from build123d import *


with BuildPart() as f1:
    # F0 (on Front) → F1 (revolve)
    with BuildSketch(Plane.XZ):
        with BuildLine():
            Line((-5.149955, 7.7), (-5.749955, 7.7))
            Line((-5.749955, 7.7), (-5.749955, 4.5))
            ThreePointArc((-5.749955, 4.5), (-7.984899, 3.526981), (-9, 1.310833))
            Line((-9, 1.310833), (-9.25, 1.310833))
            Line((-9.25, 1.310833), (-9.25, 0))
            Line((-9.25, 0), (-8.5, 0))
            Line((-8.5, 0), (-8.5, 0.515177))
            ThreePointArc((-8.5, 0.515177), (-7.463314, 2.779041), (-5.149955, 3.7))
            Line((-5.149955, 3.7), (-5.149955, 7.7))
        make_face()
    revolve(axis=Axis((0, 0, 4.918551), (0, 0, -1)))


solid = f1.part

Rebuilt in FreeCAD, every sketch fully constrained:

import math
import FreeCAD as App
import Part
import Sketcher
Q = App.Units.Quantity

doc = App.newDocument("Part")
body = doc.addObject("PartDesign::Body", "Body")

sketch1 = body.newObject("Sketcher::SketchObject", "Sketch")
sketch1.AttachmentSupport = (doc.getObject("XZ_Plane"), [""])
sketch1.MapMode = "FlatFace"
sketch1.addGeometry(Part.LineSegment(App.Vector(-5.15, 7.7, 0), App.Vector(-5.75, 7.7, 0)), False)
sketch1.addGeometry(Part.LineSegment(App.Vector(-5.75, 7.7, 0), App.Vector(-5.75, 4.5, 0)), False)
sketch1.addGeometry(Part.ArcOfCircle(Part.Circle(App.Vector(-5.6, 1.09, 0), App.Vector(0, 0, 1), 3.41), math.radians(93), math.radians(176)), False)
sketch1.addGeometry(Part.LineSegment(App.Vector(-9, 1.31, 0), App.Vector(-9.25, 1.31, 0)), False)
sketch1.addGeometry(Part.LineSegment(App.Vector(-9.25, 1.31, 0), App.Vector(-9.25, 0, 0)), False)
sketch1.addGeometry(Part.LineSegment(App.Vector(-9.25, 0, 0), App.Vector(-8.5, 0, 0)), False)
sketch1.addGeometry(Part.LineSegment(App.Vector(-8.5, 0, 0), App.Vector(-8.5, 0.52, 0)), False)
sketch1.addGeometry(Part.ArcOfCircle(Part.Circle(App.Vector(-5.16, 0.35, 0), App.Vector(0, 0, 1), 3.35), math.radians(90), math.radians(177)), False)
sketch1.addGeometry(Part.LineSegment(App.Vector(-5.15, 3.7, 0), App.Vector(-5.15, 7.7, 0)), False)
sketch1.addConstraint(Sketcher.Constraint("Coincident", 0, 2, 1, 1))
sketch1.addConstraint(Sketcher.Constraint("Coincident", 1, 2, 2, 1))
sketch1.addConstraint(Sketcher.Constraint("Coincident", 2, 2, 3, 1))
sketch1.addConstraint(Sketcher.Constraint("Coincident", 3, 2, 4, 1))
sketch1.addConstraint(Sketcher.Constraint("Coincident", 4, 2, 5, 1))
sketch1.addConstraint(Sketcher.Constraint("Coincident", 5, 2, 6, 1))
sketch1.addConstraint(Sketcher.Constraint("Coincident", 6, 2, 7, 2))
sketch1.addConstraint(Sketcher.Constraint("Coincident", 7, 1, 8, 1))
sketch1.addConstraint(Sketcher.Constraint("Coincident", 8, 2, 0, 1))
sketch1.addConstraint(Sketcher.Constraint("Horizontal", 0))
sketch1.addConstraint(Sketcher.Constraint("Vertical", 1))
sketch1.addConstraint(Sketcher.Constraint("Horizontal", 3))
sketch1.addConstraint(Sketcher.Constraint("Vertical", 4))
sketch1.addConstraint(Sketcher.Constraint("Horizontal", 5))
sketch1.addConstraint(Sketcher.Constraint("Vertical", 6))
sketch1.addConstraint(Sketcher.Constraint("Vertical", 8))
sketch1.addConstraint(Sketcher.Constraint("PointOnObject", 4, 2, -1))
sketch1.addConstraint(Sketcher.Constraint("DistanceY", 8, 1, 8, 2, Q("4 mm")))
sketch1.addConstraint(Sketcher.Constraint("DistanceX", 0, 2, 0, 1, Q("0.6 mm")))
sketch1.addConstraint(Sketcher.Constraint("DistanceY", 1, 2, 1, 1, Q("3.2 mm")))
sketch1.addConstraint(Sketcher.Constraint("DistanceX", 2, 2, -1, 1, Q("9 mm")))
sketch1.addConstraint(Sketcher.Constraint("DistanceX", 3, 2, 3, 1, Q("0.25 mm")))
sketch1.addConstraint(Sketcher.Constraint("DistanceX", 5, 1, 5, 2, Q("0.75 mm")))
sketch1.addConstraint(Sketcher.Constraint("DistanceY", -1, 1, 0, 2, Q("7.7 mm")))
sketch1.addConstraint(Sketcher.Constraint("Radius", 2, Q("3.411535 mm")))
sketch1.addConstraint(Sketcher.Constraint("Radius", 7, Q("3.345972 mm")))
sketch1.addConstraint(Sketcher.Constraint("DistanceY", 4, 2, 4, 1, Q("1.310833 mm")))
sketch1.addConstraint(Sketcher.Constraint("DistanceY", 6, 1, 6, 2, Q("0.515177 mm")))
sketch1.addConstraint(Sketcher.Constraint("DistanceY", 2, 3, 2, 2, Q("0.21887 mm")))
revolution = body.newObject("PartDesign::Revolution", "Revolution")
revolution.Profile = sketch1
revolution.ReferenceAxis = (sketch1, ["V_Axis"])
revolution.Angle = 360

doc.recompute()
